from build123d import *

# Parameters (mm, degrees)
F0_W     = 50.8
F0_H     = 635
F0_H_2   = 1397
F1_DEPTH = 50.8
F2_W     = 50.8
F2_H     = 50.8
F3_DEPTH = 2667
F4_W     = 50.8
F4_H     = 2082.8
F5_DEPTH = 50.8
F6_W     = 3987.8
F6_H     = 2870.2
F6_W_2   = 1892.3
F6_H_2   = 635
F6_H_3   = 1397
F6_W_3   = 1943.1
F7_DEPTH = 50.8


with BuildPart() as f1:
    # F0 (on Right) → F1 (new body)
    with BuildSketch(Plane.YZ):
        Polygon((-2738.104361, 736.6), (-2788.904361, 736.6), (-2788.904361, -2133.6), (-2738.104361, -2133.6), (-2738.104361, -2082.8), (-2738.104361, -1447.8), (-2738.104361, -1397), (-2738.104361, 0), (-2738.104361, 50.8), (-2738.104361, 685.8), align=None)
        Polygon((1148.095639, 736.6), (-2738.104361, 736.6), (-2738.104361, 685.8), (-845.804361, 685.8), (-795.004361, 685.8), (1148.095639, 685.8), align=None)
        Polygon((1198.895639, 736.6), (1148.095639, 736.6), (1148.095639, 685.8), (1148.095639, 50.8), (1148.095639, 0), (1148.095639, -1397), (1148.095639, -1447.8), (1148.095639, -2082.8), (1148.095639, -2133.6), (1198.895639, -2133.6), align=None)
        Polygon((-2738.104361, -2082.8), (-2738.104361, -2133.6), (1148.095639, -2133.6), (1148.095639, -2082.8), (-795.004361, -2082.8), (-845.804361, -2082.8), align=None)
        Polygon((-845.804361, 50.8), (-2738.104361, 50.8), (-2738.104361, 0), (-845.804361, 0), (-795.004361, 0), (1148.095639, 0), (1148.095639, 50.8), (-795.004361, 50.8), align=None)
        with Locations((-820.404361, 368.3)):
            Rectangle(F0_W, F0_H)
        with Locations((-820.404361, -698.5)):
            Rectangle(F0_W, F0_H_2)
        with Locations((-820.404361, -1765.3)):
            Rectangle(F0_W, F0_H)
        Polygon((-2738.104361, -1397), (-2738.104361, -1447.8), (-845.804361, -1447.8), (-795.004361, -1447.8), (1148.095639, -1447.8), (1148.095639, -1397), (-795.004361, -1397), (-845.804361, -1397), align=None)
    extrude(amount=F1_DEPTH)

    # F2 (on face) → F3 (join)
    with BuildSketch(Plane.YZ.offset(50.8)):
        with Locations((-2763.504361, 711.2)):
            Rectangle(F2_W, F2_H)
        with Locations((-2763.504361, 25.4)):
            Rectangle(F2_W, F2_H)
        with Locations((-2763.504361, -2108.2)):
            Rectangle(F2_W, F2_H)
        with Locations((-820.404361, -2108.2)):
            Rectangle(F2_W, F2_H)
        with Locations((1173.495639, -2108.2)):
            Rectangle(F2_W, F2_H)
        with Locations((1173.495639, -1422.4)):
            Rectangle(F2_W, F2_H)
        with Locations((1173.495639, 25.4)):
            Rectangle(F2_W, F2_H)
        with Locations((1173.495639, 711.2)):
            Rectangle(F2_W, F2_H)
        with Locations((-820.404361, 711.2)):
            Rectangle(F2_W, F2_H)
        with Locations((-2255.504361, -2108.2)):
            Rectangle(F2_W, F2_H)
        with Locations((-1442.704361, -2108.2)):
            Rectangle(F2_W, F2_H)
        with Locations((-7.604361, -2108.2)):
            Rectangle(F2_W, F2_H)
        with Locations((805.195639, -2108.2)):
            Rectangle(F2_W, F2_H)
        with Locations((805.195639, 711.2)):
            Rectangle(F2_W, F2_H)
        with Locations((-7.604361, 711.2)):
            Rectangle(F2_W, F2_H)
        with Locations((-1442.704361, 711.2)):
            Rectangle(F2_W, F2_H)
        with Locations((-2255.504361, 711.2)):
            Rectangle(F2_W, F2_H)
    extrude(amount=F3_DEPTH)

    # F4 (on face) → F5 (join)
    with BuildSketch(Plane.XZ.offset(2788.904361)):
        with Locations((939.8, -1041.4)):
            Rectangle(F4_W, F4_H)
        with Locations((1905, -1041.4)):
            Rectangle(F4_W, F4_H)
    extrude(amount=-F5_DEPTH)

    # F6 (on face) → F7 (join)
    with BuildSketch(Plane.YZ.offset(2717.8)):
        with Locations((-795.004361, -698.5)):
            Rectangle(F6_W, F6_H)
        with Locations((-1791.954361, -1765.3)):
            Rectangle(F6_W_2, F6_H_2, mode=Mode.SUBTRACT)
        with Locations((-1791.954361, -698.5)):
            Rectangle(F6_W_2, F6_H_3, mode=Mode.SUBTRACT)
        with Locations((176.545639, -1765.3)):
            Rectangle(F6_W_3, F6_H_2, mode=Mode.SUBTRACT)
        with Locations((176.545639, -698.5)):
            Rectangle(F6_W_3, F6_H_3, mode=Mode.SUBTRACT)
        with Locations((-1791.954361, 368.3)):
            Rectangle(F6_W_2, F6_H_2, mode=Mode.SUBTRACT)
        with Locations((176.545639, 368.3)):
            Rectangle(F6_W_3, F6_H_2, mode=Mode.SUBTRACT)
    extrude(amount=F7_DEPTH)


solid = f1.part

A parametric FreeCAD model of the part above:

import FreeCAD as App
import Part
import Sketcher

V = App.Vector
Q = App.Units.Quantity

doc = App.newDocument("Part")
body = doc.addObject("PartDesign::Body", "Body")

sketch1 = body.newObject("Sketcher::SketchObject", "Sketch")
sketch1.AttachmentSupport = (doc.getObject("YZ_Plane"), [""])
sketch1.MapMode = "FlatFace"
sketch1.addGeometry(Part.LineSegment(V(-2788.904361, 736.6, 0), V(-2788.904361, -2133.6, 0)), False)
sketch1.addGeometry(Part.LineSegment(V(-2788.904361, -2133.6, 0), V(1198.895639, -2133.6, 0)), False)
sketch1.addGeometry(Part.LineSegment(V(1198.895639, -2133.6, 0), V(1198.895639, 736.6, 0)), False)
sketch1.addGeometry(Part.LineSegment(V(1198.895639, 736.6, 0), V(-2788.904361, 736.6, 0)), False)
sketch1.addGeometry(Part.LineSegment(V(-2738.104361, -2082.8, 0), V(-2738.104361, -1447.8, 0)), False)
sketch1.addGeometry(Part.LineSegment(V(-2738.104361, -1447.8, 0), V(-845.804361, -1447.8, 0)), False)
sketch1.addGeometry(Part.LineSegment(V(-845.804361, -1447.8, 0), V(-845.804361, -2082.8, 0)), False)
sketch1.addGeometry(Part.LineSegment(V(-845.804361, -2082.8, 0), V(-2738.104361, -2082.8, 0)), False)
sketch1.addGeometry(Part.LineSegment(V(-2738.104361, -1397, 0), V(-2738.104361, 0, 0)), False)
sketch1.addGeometry(Part.LineSegment(V(-2738.104361, 0, 0), V(-845.804361, 0, 0)), False)
sketch1.addGeometry(Part.LineSegment(V(-845.804361, 0, 0), V(-845.804361, -1397, 0)), False)
sketch1.addGeometry(Part.LineSegment(V(-845.804361, -1397, 0), V(-2738.104361, -1397, 0)), False)
sketch1.addGeometry(Part.LineSegment(V(-795.004361, -1397, 0), V(-795.004361, 0, 0)), False)
sketch1.addGeometry(Part.LineSegment(V(-795.004361, 0, 0), V(1148.095639, 0, 0)), False)
sketch1.addGeometry(Part.LineSegment(V(1148.095639, 0, 0), V(1148.095639, -1397, 0)), False)
sketch1.addGeometry(Part.LineSegment(V(1148.095639, -1397, 0), V(-795.004361, -1397, 0)), False)
sketch1.addGeometry(Part.LineSegment(V(1148.095639, -1447.8, 0), V(1148.095639, -2082.8, 0)), False)
sketch1.addGeometry(Part.LineSegment(V(1148.095639, -2082.8, 0), V(-795.004361, -2082.8, 0)), False)
sketch1.addGeometry(Part.LineSegment(V(-795.004361, -2082.8, 0), V(-795.004361, -1447.8, 0)), False)
sketch1.addGeometry(Part.LineSegment(V(-795.004361, -1447.8, 0), V(1148.095639, -1447.8, 0)), False)
sketch1.addGeometry(Part.LineSegment(V(-2738.104361, 50.8, 0), V(-2738.104361, 685.8, 0)), False)
sketch1.addGeometry(Part.LineSegment(V(-2738.104361, 685.8, 0), V(-845.804361, 685.8, 0)), False)
sketch1.addGeometry(Part.LineSegment(V(-845.804361, 685.8, 0), V(-845.804361, 50.8, 0)), False)
sketch1.addGeometry(Part.LineSegment(V(-845.804361, 50.8, 0), V(-2738.104361, 50.8, 0)), False)
sketch1.addGeometry(Part.LineSegment(V(-795.004361, 685.8, 0), V(1148.095639, 685.8, 0)), False)
sketch1.addGeometry(Part.LineSegment(V(1148.095639, 685.8, 0), V(1148.095639, 50.8, 0)), False)
sketch1.addGeometry(Part.LineSegment(V(1148.095639, 50.8, 0), V(-795.004361, 50.8, 0)), False)
sketch1.addGeometry(Part.LineSegment(V(-795.004361, 50.8, 0), V(-795.004361, 685.8, 0)), False)
sketch1.addConstraint(Sketcher.Constraint("Coincident", 0, 2, 1, 1))
sketch1.addConstraint(Sketcher.Constraint("Coincident", 1, 2, 2, 1))
sketch1.addConstraint(Sketcher.Constraint("Coincident", 2, 2, 3, 1))
sketch1.addConstraint(Sketcher.Constraint("Coincident", 3, 2, 0, 1))
sketch1.addConstraint(Sketcher.Constraint("Coincident", 4, 2, 5, 1))
sketch1.addConstraint(Sketcher.Constraint("Coincident", 5, 2, 6, 1))
sketch1.addConstraint(Sketcher.Constraint("Coincident", 6, 2, 7, 1))
sketch1.addConstraint(Sketcher.Constraint("Coincident", 7, 2, 4, 1))
sketch1.addConstraint(Sketcher.Constraint("Coincident", 8, 2, 9, 1))
sketch1.addConstraint(Sketcher.Constraint("Coincident", 9, 2, 10, 1))
sketch1.addConstraint(Sketcher.Constraint("Coincident", 10, 2, 11, 1))
sketch1.addConstraint(Sketcher.Constraint("Coincident", 11, 2, 8, 1))
sketch1.addConstraint(Sketcher.Constraint("Coincident", 12, 2, 13, 1))
sketch1.addConstraint(Sketcher.Constraint("Coincident", 13, 2, 14, 1))
sketch1.addConstraint(Sketcher.Constraint("Coincident", 14, 2, 15, 1))
sketch1.addConstraint(Sketcher.Constraint("Coincident", 15, 2, 12, 1))
sketch1.addConstraint(Sketcher.Constraint("Coincident", 16, 2, 17, 1))
sketch1.addConstraint(Sketcher.Constraint("Coincident", 17, 2, 18, 1))
sketch1.addConstraint(Sketcher.Constraint("Coincident", 18, 2, 19, 1))
sketch1.addConstraint(Sketcher.Constraint("Coincident", 19, 2, 16, 1))
sketch1.addConstraint(Sketcher.Constraint("Coincident", 20, 2, 21, 1))
sketch1.addConstraint(Sketcher.Constraint("Coincident", 21, 2, 22, 1))
sketch1.addConstraint(Sketcher.Constraint("Coincident", 22, 2, 23, 1))
sketch1.addConstraint(Sketcher.Constraint("Coincident", 23, 2, 20, 1))
sketch1.addConstraint(Sketcher.Constraint("Coincident", 24, 2, 25, 1))
sketch1.addConstraint(Sketcher.Constraint("Coincident", 25, 2, 26, 1))
sketch1.addConstraint(Sketcher.Constraint("Coincident", 26, 2, 27, 1))
sketch1.addConstraint(Sketcher.Constraint("Coincident", 27, 2, 24, 1))
sketch1.addConstraint(Sketcher.Constraint("Vertical", 0))
sketch1.addConstraint(Sketcher.Constraint("Horizontal", 1))
sketch1.addConstraint(Sketcher.Constraint("Vertical", 2))
sketch1.addConstraint(Sketcher.Constraint("Horizontal", 3))
sketch1.addConstraint(Sketcher.Constraint("Vertical", 4))
sketch1.addConstraint(Sketcher.Constraint("Horizontal", 5))
sketch1.addConstraint(Sketcher.Constraint("Vertical", 6))
sketch1.addConstraint(Sketcher.Constraint("Horizontal", 7))
sketch1.addConstraint(Sketcher.Constraint("Vertical", 8))
sketch1.addConstraint(Sketcher.Constraint("Horizontal", 9))
sketch1.addConstraint(Sketcher.Constraint("Vertical", 10))
sketch1.addConstraint(Sketcher.Constraint("Horizontal", 11))
sketch1.addConstraint(Sketcher.Constraint("Vertical", 12))
sketch1.addConstraint(Sketcher.Constraint("Horizontal", 13))
sketch1.addConstraint(Sketcher.Constraint("Vertical", 14))
sketch1.addConstraint(Sketcher.Constraint("Horizontal", 15))
sketch1.addConstraint(Sketcher.Constraint("Vertical", 16))
sketch1.addConstraint(Sketcher.Constraint("Horizontal", 17))
sketch1.addConstraint(Sketcher.Constraint("Vertical", 18))
sketch1.addConstraint(Sketcher.Constraint("Horizontal", 19))
sketch1.addConstraint(Sketcher.Constraint("Vertical", 20))
sketch1.addConstraint(Sketcher.Constraint("Horizontal", 21))
sketch1.addConstraint(Sketcher.Constraint("Vertical", 22))
sketch1.addConstraint(Sketcher.Constraint("Horizontal", 23))
sketch1.addConstraint(Sketcher.Constraint("Horizontal", 24))
sketch1.addConstraint(Sketcher.Constraint("Vertical", 25))
sketch1.addConstraint(Sketcher.Constraint("Horizontal", 26))
sketch1.addConstraint(Sketcher.Constraint("Vertical", 27))
sketch1.addConstraint(Sketcher.Constraint("PointOnObject", 8, 2, -1))
sketch1.addConstraint(Sketcher.Constraint("PointOnObject", 12, 2, -1))
sketch1.addConstraint(Sketcher.Constraint("Horizontal", 11, 2, 14, 2))
sketch1.addConstraint(Sketcher.Constraint("Horizontal", 7, 2, 16, 2))
sketch1.addConstraint(Sketcher.Constraint("Horizontal", 5, 2, 18, 2))
sketch1.addConstraint(Sketcher.Constraint("Horizontal", 21, 2, 24, 2))
sketch1.addConstraint(Sketcher.Constraint("Horizontal", 23, 2, 25, 2))
sketch1.addConstraint(Sketcher.Constraint("Vertical", 7, 2, 8, 2))
sketch1.addConstraint(Sketcher.Constraint("Vertical", 6, 2, 9, 2))
sketch1.addConstraint(Sketcher.Constraint("Vertical", 14, 2, 16, 2))
sketch1.addConstraint(Sketcher.Constraint("Vertical", 15, 2, 17, 2))
sketch1.addConstraint(Sketcher.Constraint("Vertical", 11, 2, 20, 2))
sketch1.addConstraint(Sketcher.Constraint("Vertical", 10, 2, 21, 2))
sketch1.addConstraint(Sketcher.Constraint("Vertical", 19, 2, 24, 2))
sketch1.addConstraint(Sketcher.Constraint("Vertical", 18, 2, 26, 2))
sketch1.addConstraint(Sketcher.Constraint("Equal", 18, 20))
sketch1.addConstraint(Sketcher.Constraint("DistanceX", 1, 1, 1, 2, Q("157 in")))
sketch1.addConstraint(Sketcher.Constraint("DistanceY", 0, 2, 0, 1, Q("113 in")))
sketch1.addConstraint(Sketcher.Constraint("DistanceY", 4, 1, 4, 2, Q("25 in")))
sketch1.addConstraint(Sketcher.Constraint("DistanceY", 8, 1, 8, 2, Q("55 in")))
sketch1.addConstraint(Sketcher.Constraint("DistanceX", 5, 1, 5, 2, Q("74.5 in")))
sketch1.addConstraint(Sketcher.Constraint("DistanceX", 13, 1, 13, 2, Q("76.5 in")))
sketch1.addConstraint(Sketcher.Constraint("DistanceY", 0, 2, -1, 1, Q("84 in")))
sketch1.addConstraint(Sketcher.Constraint("DistanceY", 4, 2, -1, 1, Q("57 in")))
sketch1.addConstraint(Sketcher.Constraint("DistanceY", -1, 1, 20, 2, Q("27 in")))
sketch1.addConstraint(Sketcher.Constraint("DistanceX", 0, 2, 4, 2, Q("2 in")))
sketch1.addConstraint(Sketcher.Constraint("DistanceX", 9, 2, 12, 2, Q("2 in")))
sketch1.addConstraint(Sketcher.Constraint("DistanceX", 0, 2, -1, 1, 2788.904361))
pad1 = body.newObject("PartDesign::Pad", "Pad")
pad1.Profile = sketch1
pad1.Length = Q("2 in")

sketch2 = body.newObject("Sketcher::SketchObject", "Sketch001")
sketch2.AttachmentSupport = (doc.getObject("YZ_Plane"), [""])
sketch2.MapMode = "FlatFace"
sketch2.AttachmentOffset = App.Placement(V(0, 0, 2 * 25.4), App.Rotation())
sketch2.addGeometry(Part.LineSegment(V(-2788.904361, 736.6, 0), V(-2788.904361, 685.8, 0)), False)
sketch2.addGeometry(Part.LineSegment(V(-2788.904361, 685.8, 0), V(-2738.104361, 685.8, 0)), False)
sketch2.addGeometry(Part.LineSegment(V(-2738.104361, 685.8, 0), V(-2738.104361, 736.6, 0)), False)
sketch2.addGeometry(Part.LineSegment(V(-2738.104361, 736.6, 0), V(-2788.904361, 736.6, 0)), False)
sketch2.addGeometry(Part.LineSegment(V(-2788.904361, 50.8, 0), V(-2788.904361, 0, 0)), False)
sketch2.addGeometry(Part.LineSegment(V(-2788.904361, 0, 0), V(-2738.104361, 0, 0)), False)
sketch2.addGeometry(Part.LineSegment(V(-2738.104361, 0, 0), V(-2738.104361, 50.8, 0)), False)
sketch2.addGeometry(Part.LineSegment(V(-2738.104361, 50.8, 0), V(-2788.904361, 50.8, 0)), False)
sketch2.addGeometry(Part.LineSegment(V(-2788.904361, -2082.8, 0), V(-2788.904361, -2133.6, 0)), False)
sketch2.addGeometry(Part.LineSegment(V(-2788.904361, -2133.6, 0), V(-2738.104361, -2133.6, 0)), False)
sketch2.addGeometry(Part.LineSegment(V(-2738.104361, -2133.6, 0), V(-2738.104361, -2082.8, 0)), False)
sketch2.addGeometry(Part.LineSegment(V(-2738.104361, -2082.8, 0), V(-2788.904361, -2082.8, 0)), False)
sketch2.addGeometry(Part.LineSegment(V(-845.804361, -2082.8, 0), V(-845.804361, -2133.6, 0)), False)
sketch2.addGeometry(Part.LineSegment(V(-845.804361, -2133.6, 0), V(-795.004361, -2133.6, 0)), False)
sketch2.addGeometry(Part.LineSegment(V(-795.004361, -2133.6, 0), V(-795.004361, -2082.8, 0)), False)
sketch2.addGeometry(Part.LineSegment(V(-795.004361, -2082.8, 0), V(-845.804361, -2082.8, 0)), False)
sketch2.addGeometry(Part.LineSegment(V(1148.095639, -2082.8, 0), V(1148.095639, -2133.6, 0)), False)
sketch2.addGeometry(Part.LineSegment(V(1148.095639, -2133.6, 0), V(1198.895639, -2133.6, 0)), False)
sketch2.addGeometry(Part.LineSegment(V(1198.895639, -2133.6, 0), V(1198.895639, -2082.8, 0)), False)
sketch2.addGeometry(Part.LineSegment(V(1198.895639, -2082.8, 0), V(1148.095639, -2082.8, 0)), False)
sketch2.addGeometry(Part.LineSegment(V(1148.095639, -1397, 0), V(1148.095639, -1447.8, 0)), False)
sketch2.addGeometry(Part.LineSegment(V(1148.095639, -1447.8, 0), V(1198.895639, -1447.8, 0)), False)
sketch2.addGeometry(Part.LineSegment(V(1198.895639, -1447.8, 0), V(1198.895639, -1397, 0)), False)
sketch2.addGeometry(Part.LineSegment(V(1198.895639, -1397, 0), V(1148.095639, -1397, 0)), False)
sketch2.addGeometry(Part.LineSegment(V(1148.095639, 50.8, 0), V(1148.095639, 0, 0)), False)
sketch2.addGeometry(Part.LineSegment(V(1148.095639, 0, 0), V(1198.895639, 0, 0)), False)
sketch2.addGeometry(Part.LineSegment(V(1198.895639, 0, 0), V(1198.895639, 50.8, 0)), False)
sketch2.addGeometry(Part.LineSegment(V(1198.895639, 50.8, 0), V(1148.095639, 50.8, 0)), False)
sketch2.addGeometry(Part.LineSegment(V(1148.095639, 736.6, 0), V(1148.095639, 685.8, 0)), False)
sketch2.addGeometry(Part.LineSegment(V(1148.095639, 685.8, 0), V(1198.895639, 685.8, 0)), False)
sketch2.addGeometry(Part.LineSegment(V(1198.895639, 685.8, 0), V(1198.895639, 736.6, 0)), False)
sketch2.addGeometry(Part.LineSegment(V(1198.895639, 736.6, 0), V(1148.095639, 736.6, 0)), False)
sketch2.addGeometry(Part.LineSegment(V(-845.804361, 736.6, 0), V(-845.804361, 685.8, 0)), False)
sketch2.addGeometry(Part.LineSegment(V(-845.804361, 685.8, 0), V(-795.004361, 685.8, 0)), False)
sketch2.addGeometry(Part.LineSegment(V(-795.004361, 685.8, 0), V(-795.004361, 736.6, 0)), False)
sketch2.addGeometry(Part.LineSegment(V(-795.004361, 736.6, 0), V(-845.804361, 736.6, 0)), False)
sketch2.addGeometry(Part.LineSegment(V(-2280.904361, -2082.8, 0), V(-2280.904361, -2133.6, 0)), False)
sketch2.addGeometry(Part.LineSegment(V(-2280.904361, -2133.6, 0), V(-2230.104361, -2133.6, 0)), False)
sketch2.addGeometry(Part.LineSegment(V(-2230.104361, -2133.6, 0), V(-2230.104361, -2082.8, 0)), False)
sketch2.addGeometry(Part.LineSegment(V(-2230.104361, -2082.8, 0), V(-2280.904361, -2082.8, 0)), False)
sketch2.addGeometry(Part.LineSegment(V(-1468.104361, -2082.8, 0), V(-1468.104361, -2133.6, 0)), False)
sketch2.addGeometry(Part.LineSegment(V(-1468.104361, -2133.6, 0), V(-1417.304361, -2133.6, 0)), False)
sketch2.addGeometry(Part.LineSegment(V(-1417.304361, -2133.6, 0), V(-1417.304361, -2082.8, 0)), False)
sketch2.addGeometry(Part.LineSegment(V(-1417.304361, -2082.8, 0), V(-1468.104361, -2082.8, 0)), False)
sketch2.addGeometry(Part.LineSegment(V(-33.004361, -2082.8, 0), V(-33.004361, -2133.6, 0)), False)
sketch2.addGeometry(Part.LineSegment(V(-33.004361, -2133.6, 0), V(17.795639, -2133.6, 0)), False)
sketch2.addGeometry(Part.LineSegment(V(17.795639, -2133.6, 0), V(17.795639, -2082.8, 0)), False)
sketch2.addGeometry(Part.LineSegment(V(17.795639, -2082.8, 0), V(-33.004361, -2082.8, 0)), False)
sketch2.addGeometry(Part.LineSegment(V(779.795639, -2082.8, 0), V(779.795639, -2133.6, 0)), False)
sketch2.addGeometry(Part.LineSegment(V(779.795639, -2133.6, 0), V(830.595639, -2133.6, 0)), False)
sketch2.addGeometry(Part.LineSegment(V(830.595639, -2133.6, 0), V(830.595639, -2082.8, 0)), False)
sketch2.addGeometry(Part.LineSegment(V(830.595639, -2082.8, 0), V(779.795639, -2082.8, 0)), False)
sketch2.addGeometry(Part.LineSegment(V(779.795639, 736.6, 0), V(779.795639, 685.8, 0)), False)
sketch2.addGeometry(Part.LineSegment(V(779.795639, 685.8, 0), V(830.595639, 685.8, 0)), False)
sketch2.addGeometry(Part.LineSegment(V(830.595639, 685.8, 0), V(830.595639, 736.6, 0)), False)
sketch2.addGeometry(Part.LineSegment(V(830.595639, 736.6, 0), V(779.795639, 736.6, 0)), False)
sketch2.addGeometry(Part.LineSegment(V(-33.004361, 736.6, 0), V(-33.004361, 685.8, 0)), False)
sketch2.addGeometry(Part.LineSegment(V(-33.004361, 685.8, 0), V(17.795639, 685.8, 0)), False)
sketch2.addGeometry(Part.LineSegment(V(17.795639, 685.8, 0), V(17.795639, 736.6, 0)), False)
sketch2.addGeometry(Part.LineSegment(V(17.795639, 736.6, 0), V(-33.004361, 736.6, 0)), False)
sketch2.addGeometry(Part.LineSegment(V(-1468.104361, 736.6, 0), V(-1468.104361, 685.8, 0)), False)
sketch2.addGeometry(Part.LineSegment(V(-1468.104361, 685.8, 0), V(-1417.304361, 685.8, 0)), False)
sketch2.addGeometry(Part.LineSegment(V(-1417.304361, 685.8, 0), V(-1417.304361, 736.6, 0)), False)
sketch2.addGeometry(Part.LineSegment(V(-1417.304361, 736.6, 0), V(-1468.104361, 736.6, 0)), False)
sketch2.addGeometry(Part.LineSegment(V(-2280.904361, 736.6, 0), V(-2280.904361, 685.8, 0)), False)
sketch2.addGeometry(Part.LineSegment(V(-2280.904361, 685.8, 0), V(-2230.104361, 685.8, 0)), False)
sketch2.addGeometry(Part.LineSegment(V(-2230.104361, 685.8, 0), V(-2230.104361, 736.6, 0)), False)
sketch2.addGeometry(Part.LineSegment(V(-2230.104361, 736.6, 0), V(-2280.904361, 736.6, 0)), False)
sketch2.addConstraint(Sketcher.Constraint("Coincident", 0, 2, 1, 1))
sketch2.addConstraint(Sketcher.Constraint("Coincident", 1, 2, 2, 1))
sketch2.addConstraint(Sketcher.Constraint("Coincident", 2, 2, 3, 1))
sketch2.addConstraint(Sketcher.Constraint("Coincident", 3, 2, 0, 1))
sketch2.addConstraint(Sketcher.Constraint("Coincident", 4, 2, 5, 1))
sketch2.addConstraint(Sketcher.Constraint("Coincident", 5, 2, 6, 1))
sketch2.addConstraint(Sketcher.Constraint("Coincident", 6, 2, 7, 1))
sketch2.addConstraint(Sketcher.Constraint("Coincident", 7, 2, 4, 1))
sketch2.addConstraint(Sketcher.Constraint("Coincident", 8, 2, 9, 1))
sketch2.addConstraint(Sketcher.Constraint("Coincident", 9, 2, 10, 1))
sketch2.addConstraint(Sketcher.Constraint("Coincident", 10, 2, 11, 1))
sketch2.addConstraint(Sketcher.Constraint("Coincident", 11, 2, 8, 1))
sketch2.addConstraint(Sketcher.Constraint("Coincident", 12, 2, 13, 1))
sketch2.addConstraint(Sketcher.Constraint("Coincident", 13, 2, 14, 1))
sketch2.addConstraint(Sketcher.Constraint("Coincident", 14, 2, 15, 1))
sketch2.addConstraint(Sketcher.Constraint("Coincident", 15, 2, 12, 1))
sketch2.addConstraint(Sketcher.Constraint("Coincident", 16, 2, 17, 1))
sketch2.addConstraint(Sketcher.Constraint("Coincident", 17, 2, 18, 1))
sketch2.addConstraint(Sketcher.Constraint("Coincident", 18, 2, 19, 1))
sketch2.addConstraint(Sketcher.Constraint("Coincident", 19, 2, 16, 1))
sketch2.addConstraint(Sketcher.Constraint("Coincident", 20, 2, 21, 1))
sketch2.addConstraint(Sketcher.Constraint("Coincident", 21, 2, 22, 1))
sketch2.addConstraint(Sketcher.Constraint("Coincident", 22, 2, 23, 1))
sketch2.addConstraint(Sketcher.Constraint("Coincident", 23, 2, 20, 1))
sketch2.addConstraint(Sketcher.Constraint("Coincident", 24, 2, 25, 1))
sketch2.addConstraint(Sketcher.Constraint("Coincident", 25, 2, 26, 1))
sketch2.addConstraint(Sketcher.Constraint("Coincident", 26, 2, 27, 1))
sketch2.addConstraint(Sketcher.Constraint("Coincident", 27, 2, 24, 1))
sketch2.addConstraint(Sketcher.Constraint("Coincident", 28, 2, 29, 1))
sketch2.addConstraint(Sketcher.Constraint("Coincident", 29, 2, 30, 1))
sketch2.addConstraint(Sketcher.Constraint("Coincident", 30, 2, 31, 1))
sketch2.addConstraint(Sketcher.Constraint("Coincident", 31, 2, 28, 1))
sketch2.addConstraint(Sketcher.Constraint("Coincident", 32, 2, 33, 1))
sketch2.addConstraint(Sketcher.Constraint("Coincident", 33, 2, 34, 1))
sketch2.addConstraint(Sketcher.Constraint("Coincident", 34, 2, 35, 1))
sketch2.addConstraint(Sketcher.Constraint("Coincident", 35, 2, 32, 1))
sketch2.addConstraint(Sketcher.Constraint("Coincident", 36, 2, 37, 1))
sketch2.addConstraint(Sketcher.Constraint("Coincident", 37, 2, 38, 1))
sketch2.addConstraint(Sketcher.Constraint("Coincident", 38, 2, 39, 1))
sketch2.addConstraint(Sketcher.Constraint("Coincident", 39, 2, 36, 1))
sketch2.addConstraint(Sketcher.Constraint("Coincident", 40, 2, 41, 1))
sketch2.addConstraint(Sketcher.Constraint("Coincident", 41, 2, 42, 1))
sketch2.addConstraint(Sketcher.Constraint("Coincident", 42, 2, 43, 1))
sketch2.addConstraint(Sketcher.Constraint("Coincident", 43, 2, 40, 1))
sketch2.addConstraint(Sketcher.Constraint("Coincident", 44, 2, 45, 1))
sketch2.addConstraint(Sketcher.Constraint("Coincident", 45, 2, 46, 1))
sketch2.addConstraint(Sketcher.Constraint("Coincident", 46, 2, 47, 1))
sketch2.addConstraint(Sketcher.Constraint("Coincident", 47, 2, 44, 1))
sketch2.addConstraint(Sketcher.Constraint("Coincident", 48, 2, 49, 1))
sketch2.addConstraint(Sketcher.Constraint("Coincident", 49, 2, 50, 1))
sketch2.addConstraint(Sketcher.Constraint("Coincident", 50, 2, 51, 1))
sketch2.addConstraint(Sketcher.Constraint("Coincident", 51, 2, 48, 1))
sketch2.addConstraint(Sketcher.Constraint("Coincident", 52, 2, 53, 1))
sketch2.addConstraint(Sketcher.Constraint("Coincident", 53, 2, 54, 1))
sketch2.addConstraint(Sketcher.Constraint("Coincident", 54, 2, 55, 1))
sketch2.addConstraint(Sketcher.Constraint("Coincident", 55, 2, 52, 1))
sketch2.addConstraint(Sketcher.Constraint("Coincident", 56, 2, 57, 1))
sketch2.addConstraint(Sketcher.Constraint("Coincident", 57, 2, 58, 1))
sketch2.addConstraint(Sketcher.Constraint("Coincident", 58, 2, 59, 1))
sketch2.addConstraint(Sketcher.Constraint("Coincident", 59, 2, 56, 1))
sketch2.addConstraint(Sketcher.Constraint("Coincident", 60, 2, 61, 1))
sketch2.addConstraint(Sketcher.Constraint("Coincident", 61, 2, 62, 1))
sketch2.addConstraint(Sketcher.Constraint("Coincident", 62, 2, 63, 1))
sketch2.addConstraint(Sketcher.Constraint("Coincident", 63, 2, 60, 1))
sketch2.addConstraint(Sketcher.Constraint("Coincident", 64, 2, 65, 1))
sketch2.addConstraint(Sketcher.Constraint("Coincident", 65, 2, 66, 1))
sketch2.addConstraint(Sketcher.Constraint("Coincident", 66, 2, 67, 1))
sketch2.addConstraint(Sketcher.Constraint("Coincident", 67, 2, 64, 1))
sketch2.addConstraint(Sketcher.Constraint("Vertical", 0))
sketch2.addConstraint(Sketcher.Constraint("Horizontal", 1))
sketch2.addConstraint(Sketcher.Constraint("Vertical", 2))
sketch2.addConstraint(Sketcher.Constraint("Horizontal", 3))
sketch2.addConstraint(Sketcher.Constraint("Vertical", 4))
sketch2.addConstraint(Sketcher.Constraint("Horizontal", 5))
sketch2.addConstraint(Sketcher.Constraint("Vertical", 6))
sketch2.addConstraint(Sketcher.Constraint("Horizontal", 7))
sketch2.addConstraint(Sketcher.Constraint("Vertical", 8))
sketch2.addConstraint(Sketcher.Constraint("Horizontal", 9))
sketch2.addConstraint(Sketcher.Constraint("Vertical", 10))
sketch2.addConstraint(Sketcher.Constraint("Horizontal", 11))
sketch2.addConstraint(Sketcher.Constraint("Vertical", 12))
sketch2.addConstraint(Sketcher.Constraint("Horizontal", 13))
sketch2.addConstraint(Sketcher.Constraint("Vertical", 14))
sketch2.addConstraint(Sketcher.Constraint("Horizontal", 15))
sketch2.addConstraint(Sketcher.Constraint("Vertical", 16))
sketch2.addConstraint(Sketcher.Constraint("Horizontal", 17))
sketch2.addConstraint(Sketcher.Constraint("Vertical", 18))
sketch2.addConstraint(Sketcher.Constraint("Horizontal", 19))
sketch2.addConstraint(Sketcher.Constraint("Vertical", 20))
sketch2.addConstraint(Sketcher.Constraint("Horizontal", 21))
sketch2.addConstraint(Sketcher.Constraint("Vertical", 22))
sketch2.addConstraint(Sketcher.Constraint("Horizontal", 23))
sketch2.addConstraint(Sketcher.Constraint("Vertical", 24))
sketch2.addConstraint(Sketcher.Constraint("Horizontal", 25))
sketch2.addConstraint(Sketcher.Constraint("Vertical", 26))
sketch2.addConstraint(Sketcher.Constraint("Horizontal", 27))
sketch2.addConstraint(Sketcher.Constraint("Vertical", 28))
sketch2.addConstraint(Sketcher.Constraint("Horizontal", 29))
sketch2.addConstraint(Sketcher.Constraint("Vertical", 30))
sketch2.addConstraint(Sketcher.Constraint("Horizontal", 31))
sketch2.addConstraint(Sketcher.Constraint("Vertical", 32))
sketch2.addConstraint(Sketcher.Constraint("Horizontal", 33))
sketch2.addConstraint(Sketcher.Constraint("Vertical", 34))
sketch2.addConstraint(Sketcher.Constraint("Horizontal", 35))
sketch2.addConstraint(Sketcher.Constraint("Vertical", 36))
sketch2.addConstraint(Sketcher.Constraint("Horizontal", 37))
sketch2.addConstraint(Sketcher.Constraint("Vertical", 38))
sketch2.addConstraint(Sketcher.Constraint("Horizontal", 39))
sketch2.addConstraint(Sketcher.Constraint("Vertical", 40))
sketch2.addConstraint(Sketcher.Constraint("Horizontal", 41))
sketch2.addConstraint(Sketcher.Constraint("Vertical", 42))
sketch2.addConstraint(Sketcher.Constraint("Horizontal", 43))
sketch2.addConstraint(Sketcher.Constraint("Vertical", 44))
sketch2.addConstraint(Sketcher.Constraint("Horizontal", 45))
sketch2.addConstraint(Sketcher.Constraint("Vertical", 46))
sketch2.addConstraint(Sketcher.Constraint("Horizontal", 47))
sketch2.addConstraint(Sketcher.Constraint("Vertical", 48))
sketch2.addConstraint(Sketcher.Constraint("Horizontal", 49))
sketch2.addConstraint(Sketcher.Constraint("Vertical", 50))
sketch2.addConstraint(Sketcher.Constraint("Horizontal", 51))
sketch2.addConstraint(Sketcher.Constraint("Vertical", 52))
sketch2.addConstraint(Sketcher.Constraint("Horizontal", 53))
sketch2.addConstraint(Sketcher.Constraint("Vertical", 54))
sketch2.addConstraint(Sketcher.Constraint("Horizontal", 55))
sketch2.addConstraint(Sketcher.Constraint("Vertical", 56))
sketch2.addConstraint(Sketcher.Constraint("Horizontal", 57))
sketch2.addConstraint(Sketcher.Constraint("Vertical", 58))
sketch2.addConstraint(Sketcher.Constraint("Horizontal", 59))
sketch2.addConstraint(Sketcher.Constraint("Vertical", 60))
sketch2.addConstraint(Sketcher.Constraint("Horizontal", 61))
sketch2.addConstraint(Sketcher.Constraint("Vertical", 62))
sketch2.addConstraint(Sketcher.Constraint("Horizontal", 63))
sketch2.addConstraint(Sketcher.Constraint("Vertical", 64))
sketch2.addConstraint(Sketcher.Constraint("Horizontal", 65))
sketch2.addConstraint(Sketcher.Constraint("Vertical", 66))
sketch2.addConstraint(Sketcher.Constraint("Horizontal", 67))
sketch2.addConstraint(Sketcher.Constraint("PointOnObject", 4, 2, -1))
sketch2.addConstraint(Sketcher.Constraint("PointOnObject", 24, 2, -1))
sketch2.addConstraint(Sketcher.Constraint("Horizontal", 9, 2, 12, 2))
sketch2.addConstraint(Sketcher.Constraint("Horizontal", 11, 2, 14, 2))
sketch2.addConstraint(Sketcher.Constraint("Horizontal", 13, 2, 16, 2))
sketch2.addConstraint(Sketcher.Constraint("Horizontal", 15, 2, 18, 2))
sketch2.addConstraint(Sketcher.Constraint("Horizontal", 7, 2, 26, 2))
sketch2.addConstraint(Sketcher.Constraint("Horizontal", 1, 2, 28, 2))
sketch2.addConstraint(Sketcher.Constraint("Horizontal", 3, 2, 30, 2))
sketch2.addConstraint(Sketcher.Constraint("Horizontal", 29, 2, 32, 2))
sketch2.addConstraint(Sketcher.Constraint("Horizontal", 31, 2, 34, 2))
sketch2.addConstraint(Sketcher.Constraint("Horizontal", 17, 2, 36, 2))
sketch2.addConstraint(Sketcher.Constraint("Horizontal", 19, 2, 38, 2))
sketch2.addConstraint(Sketcher.Constraint("Horizontal", 37, 2, 40, 2))
sketch2.addConstraint(Sketcher.Constraint("Horizontal", 39, 2, 42, 2))
sketch2.addConstraint(Sketcher.Constraint("Horizontal", 41, 2, 44, 2))
sketch2.addConstraint(Sketcher.Constraint("Horizontal", 43, 2, 46, 2))
sketch2.addConstraint(Sketcher.Constraint("Horizontal", 45, 2, 48, 2))
sketch2.addConstraint(Sketcher.Constraint("Horizontal", 47, 2, 50, 2))
sketch2.addConstraint(Sketcher.Constraint("Horizontal", 33, 2, 52, 2))
sketch2.addConstraint(Sketcher.Constraint("Horizontal", 35, 2, 54, 2))
sketch2.addConstraint(Sketcher.Constraint("Horizontal", 53, 2, 56, 2))
sketch2.addConstraint(Sketcher.Constraint("Horizontal", 55, 2, 58, 2))
sketch2.addConstraint(Sketcher.Constraint("Horizontal", 57, 2, 60, 2))
sketch2.addConstraint(Sketcher.Constraint("Horizontal", 59, 2, 62, 2))
sketch2.addConstraint(Sketcher.Constraint("Horizontal", 61, 2, 64, 2))
sketch2.addConstraint(Sketcher.Constraint("Horizontal", 63, 2, 66, 2))
sketch2.addConstraint(Sketcher.Constraint("Vertical", 3, 2, 4, 2))
sketch2.addConstraint(Sketcher.Constraint("Vertical", 2, 2, 5, 2))
sketch2.addConstraint(Sketcher.Constraint("Vertical", 7, 2, 8, 2))
sketch2.addConstraint(Sketcher.Constraint("Vertical", 6, 2, 9, 2))
sketch2.addConstraint(Sketcher.Constraint("Vertical", 19, 2, 20, 2))
sketch2.addConstraint(Sketcher.Constraint("Vertical", 18, 2, 21, 2))
sketch2.addConstraint(Sketcher.Constraint("Vertical", 23, 2, 24, 2))
sketch2.addConstraint(Sketcher.Constraint("Vertical", 22, 2, 25, 2))
sketch2.addConstraint(Sketcher.Constraint("Vertical", 27, 2, 28, 2))
sketch2.addConstraint(Sketcher.Constraint("Vertical", 26, 2, 29, 2))
sketch2.addConstraint(Sketcher.Constraint("Vertical", 15, 2, 32, 2))
sketch2.addConstraint(Sketcher.Constraint("Vertical", 14, 2, 33, 2))
sketch2.addConstraint(Sketcher.Constraint("Vertical", 51, 2, 52, 2))
sketch2.addConstraint(Sketcher.Constraint("Vertical", 50, 2, 53, 2))
sketch2.addConstraint(Sketcher.Constraint("Vertical", 47, 2, 56, 2))
sketch2.addConstraint(Sketcher.Constraint("Vertical", 46, 2, 57, 2))
sketch2.addConstraint(Sketcher.Constraint("Vertical", 43, 2, 60, 2))
sketch2.addConstraint(Sketcher.Constraint("Vertical", 42, 2, 61, 2))
sketch2.addConstraint(Sketcher.Constraint("Vertical", 39, 2, 64, 2))
sketch2.addConstraint(Sketcher.Constraint("Vertical", 38, 2, 65, 2))
sketch2.addConstraint(Sketcher.Constraint("Equal", 11, 13))
sketch2.addConstraint(Sketcher.Constraint("Equal", 15, 17))
sketch2.addConstraint(Sketcher.Constraint("Equal", 35, 37))
sketch2.addConstraint(Sketcher.Constraint("Equal", 39, 41))
sketch2.addConstraint(Sketcher.Constraint("Equal", 43, 45))
sketch2.addConstraint(Sketcher.Constraint("Equal", 47, 49))
sketch2.addConstraint(Sketcher.Constraint("Equal", 67, 0))
sketch2.addConstraint(Sketcher.Constraint("Equal", 2, 4))
sketch2.addConstraint(Sketcher.Constraint("Equal", 6, 8))
sketch2.addConstraint(Sketcher.Constraint("Equal", 18, 20))
sketch2.addConstraint(Sketcher.Constraint("DistanceX", 1, 1, 1, 2, Q("2 in")))
sketch2.addConstraint(Sketcher.Constraint("DistanceY", -1, 1, 0, 2, Q("27 in")))
sketch2.addConstraint(Sketcher.Constraint("DistanceY", 8, 2, -1, 1, Q("84 in")))
sketch2.addConstraint(Sketcher.Constraint("DistanceY", 20, 2, -1, 1, Q("57 in")))
sketch2.addConstraint(Sketcher.Constraint("DistanceX", 0, 2, -1, 1, 2788.904361))
sketch2.addConstraint(Sketcher.Constraint("DistanceX", 12, 2, -1, 1, 845.804361))
sketch2.addConstraint(Sketcher.Constraint("DistanceX", -1, 1, 16, 2, 1148.095639))
sketch2.addConstraint(Sketcher.Constraint("DistanceX", 36, 2, -1, 1, 2280.904361))
sketch2.addConstraint(Sketcher.Constraint("DistanceX", 40, 2, -1, 1, 1468.104361))
sketch2.addConstraint(Sketcher.Constraint("DistanceX", 44, 2, -1, 1, 33.004361))
sketch2.addConstraint(Sketcher.Constraint("DistanceX", -1, 1, 48, 2, 779.795639))
pad2 = body.newObject("PartDesign::Pad", "Pad001")
pad2.Profile = sketch2
pad2.Length = Q("105 in")

sketch3 = body.newObject("Sketcher::SketchObject", "Sketch002")
sketch3.AttachmentSupport = (doc.getObject("XZ_Plane"), [""])
sketch3.MapMode = "FlatFace"
sketch3.AttachmentOffset = App.Placement(V(0, 0, 2788.904361), App.Rotation())
sketch3.addGeometry(Part.LineSegment(V(914.4, 0, 0), V(914.4, -2082.8, 0)), False)
sketch3.addGeometry(Part.LineSegment(V(914.4, -2082.8, 0), V(965.2, -2082.8, 0)), False)
sketch3.addGeometry(Part.LineSegment(V(965.2, -2082.8, 0), V(965.2, 0, 0)), False)
sketch3.addGeometry(Part.LineSegment(V(965.2, 0, 0), V(914.4, 0, 0)), False)
sketch3.addGeometry(Part.LineSegment(V(1879.6, 0, 0), V(1879.6, -2082.8, 0)), False)
sketch3.addGeometry(Part.LineSegment(V(1879.6, -2082.8, 0), V(1930.4, -2082.8, 0)), False)
sketch3.addGeometry(Part.LineSegment(V(1930.4, -2082.8, 0), V(1930.4, 0, 0)), False)
sketch3.addGeometry(Part.LineSegment(V(1930.4, 0, 0), V(1879.6, 0, 0)), False)
sketch3.addConstraint(Sketcher.Constraint("Coincident", 0, 2, 1, 1))
sketch3.addConstraint(Sketcher.Constraint("Coincident", 1, 2, 2, 1))
sketch3.addConstraint(Sketcher.Constraint("Coincident", 2, 2, 3, 1))
sketch3.addConstraint(Sketcher.Constraint("Coincident", 3, 2, 0, 1))
sketch3.addConstraint(Sketcher.Constraint("Coincident", 4, 2, 5, 1))
sketch3.addConstraint(Sketcher.Constraint("Coincident", 5, 2, 6, 1))
sketch3.addConstraint(Sketcher.Constraint("Coincident", 6, 2, 7, 1))
sketch3.addConstraint(Sketcher.Constraint("Coincident", 7, 2, 4, 1))
sketch3.addConstraint(Sketcher.Constraint("Vertical", 0))
sketch3.addConstraint(Sketcher.Constraint("Horizontal", 1))
sketch3.addConstraint(Sketcher.Constraint("Vertical", 2))
sketch3.addConstraint(Sketcher.Constraint("Horizontal", 3))
sketch3.addConstraint(Sketcher.Constraint("Vertical", 4))
sketch3.addConstraint(Sketcher.Constraint("Horizontal", 5))
sketch3.addConstraint(Sketcher.Constraint("Vertical", 6))
sketch3.addConstraint(Sketcher.Constraint("Horizontal", 7))
sketch3.addConstraint(Sketcher.Constraint("PointOnObject", 2, 2, -1))
sketch3.addConstraint(Sketcher.Constraint("PointOnObject", 6, 2, -1))
sketch3.addConstraint(Sketcher.Constraint("Horizontal", 1, 2, 4, 2))
sketch3.addConstraint(Sketcher.Constraint("Equal", 3, 5))
sketch3.addConstraint(Sketcher.Constraint("DistanceX", 1, 1, 1, 2, Q("2 in")))
sketch3.addConstraint(Sketcher.Constraint("DistanceY", 0, 2, 0, 1, Q("82 in")))
sketch3.addConstraint(Sketcher.Constraint("DistanceX", -1, 1, 0, 2, Q("36 in")))
sketch3.addConstraint(Sketcher.Constraint("DistanceX", -1, 1, 4, 2, Q("74 in")))
pad3 = body.newObject("PartDesign::Pad", "Pad002")
pad3.Profile = sketch3
pad3.Length = Q("2 in")
pad3.Reversed = True

sketch4 = body.newObject("Sketcher::SketchObject", "Sketch003")
sketch4.AttachmentSupport = (doc.getObject("YZ_Plane"), [""])
sketch4.MapMode = "FlatFace"
sketch4.AttachmentOffset = App.Placement(V(0, 0, 107 * 25.4), App.Rotation())
sketch4.addGeometry(Part.LineSegment(V(-2788.904361, 736.6, 0), V(-2788.904361, -2133.6, 0)), False)
sketch4.addGeometry(Part.LineSegment(V(-2788.904361, -2133.6, 0), V(1198.895639, -2133.6, 0)), False)
sketch4.addGeometry(Part.LineSegment(V(1198.895639, -2133.6, 0), V(1198.895639, 736.6, 0)), False)
sketch4.addGeometry(Part.LineSegment(V(1198.895639, 736.6, 0), V(-2788.904361, 736.6, 0)), False)
sketch4.addGeometry(Part.LineSegment(V(-845.804361, -2082.8, 0), V(-2738.104361, -2082.8, 0)), False)
sketch4.addGeometry(Part.LineSegment(V(-2738.104361, -2082.8, 0), V(-2738.104361, -1447.8, 0)), False)
sketch4.addGeometry(Part.LineSegment(V(-2738.104361, -1447.8, 0), V(-845.804361, -1447.8, 0)), False)
sketch4.addGeometry(Part.LineSegment(V(-845.804361, -1447.8, 0), V(-845.804361, -2082.8, 0)), False)
sketch4.addGeometry(Part.LineSegment(V(1148.095639, -2082.8, 0), V(-795.004361, -2082.8, 0)), False)
sketch4.addGeometry(Part.LineSegment(V(-795.004361, -2082.8, 0), V(-795.004361, -1447.8, 0)), False)
sketch4.addGeometry(Part.LineSegment(V(-795.004361, -1447.8, 0), V(1148.095639, -1447.8, 0)), False)
sketch4.addGeometry(Part.LineSegment(V(1148.095639, -1447.8, 0), V(1148.095639, -2082.8, 0)), False)
sketch4.addGeometry(Part.LineSegment(V(-845.804361, -1397, 0), V(-2738.104361, -1397, 0)), False)
sketch4.addGeometry(Part.LineSegment(V(-2738.104361, -1397, 0), V(-2738.104361, 0, 0)), False)
sketch4.addGeometry(Part.LineSegment(V(-2738.104361, 0, 0), V(-845.804361, 0, 0)), False)
sketch4.addGeometry(Part.LineSegment(V(-845.804361, 0, 0), V(-845.804361, -1397, 0)), False)
sketch4.addGeometry(Part.LineSegment(V(-845.804361, 50.8, 0), V(-2738.104361, 50.8, 0)), False)
sketch4.addGeometry(Part.LineSegment(V(-2738.104361, 50.8, 0), V(-2738.104361, 685.8, 0)), False)
sketch4.addGeometry(Part.LineSegment(V(-2738.104361, 685.8, 0), V(-845.804361, 685.8, 0)), False)
sketch4.addGeometry(Part.LineSegment(V(-845.804361, 685.8, 0), V(-845.804361, 50.8, 0)), False)
sketch4.addGeometry(Part.LineSegment(V(1148.095639, -1397, 0), V(-795.004361, -1397, 0)), False)
sketch4.addGeometry(Part.LineSegment(V(-795.004361, -1397, 0), V(-795.004361, 0, 0)), False)
sketch4.addGeometry(Part.LineSegment(V(-795.004361, 0, 0), V(1148.095639, 0, 0)), False)
sketch4.addGeometry(Part.LineSegment(V(1148.095639, 0, 0), V(1148.095639, -1397, 0)), False)
sketch4.addGeometry(Part.LineSegment(V(1148.095639, 50.8, 0), V(-795.004361, 50.8, 0)), False)
sketch4.addGeometry(Part.LineSegment(V(-795.004361, 50.8, 0), V(-795.004361, 685.8, 0)), False)
sketch4.addGeometry(Part.LineSegment(V(-795.004361, 685.8, 0), V(1148.095639, 685.8, 0)), False)
sketch4.addGeometry(Part.LineSegment(V(1148.095639, 685.8, 0), V(1148.095639, 50.8, 0)), False)
sketch4.addConstraint(Sketcher.Constraint("Coincident", 0, 2, 1, 1))
sketch4.addConstraint(Sketcher.Constraint("Coincident", 1, 2, 2, 1))
sketch4.addConstraint(Sketcher.Constraint("Coincident", 2, 2, 3, 1))
sketch4.addConstraint(Sketcher.Constraint("Coincident", 3, 2, 0, 1))
sketch4.addConstraint(Sketcher.Constraint("Coincident", 4, 2, 5, 1))
sketch4.addConstraint(Sketcher.Constraint("Coincident", 5, 2, 6, 1))
sketch4.addConstraint(Sketcher.Constraint("Coincident", 6, 2, 7, 1))
sketch4.addConstraint(Sketcher.Constraint("Coincident", 7, 2, 4, 1))
sketch4.addConstraint(Sketcher.Constraint("Coincident", 8, 2, 9, 1))
sketch4.addConstraint(Sketcher.Constraint("Coincident", 9, 2, 10, 1))
sketch4.addConstraint(Sketcher.Constraint("Coincident", 10, 2, 11, 1))
sketch4.addConstraint(Sketcher.Constraint("Coincident", 11, 2, 8, 1))
sketch4.addConstraint(Sketcher.Constraint("Coincident", 12, 2, 13, 1))
sketch4.addConstraint(Sketcher.Constraint("Coincident", 13, 2, 14, 1))
sketch4.addConstraint(Sketcher.Constraint("Coincident", 14, 2, 15, 1))
sketch4.addConstraint(Sketcher.Constraint("Coincident", 15, 2, 12, 1))
sketch4.addConstraint(Sketcher.Constraint("Coincident", 16, 2, 17, 1))
sketch4.addConstraint(Sketcher.Constraint("Coincident", 17, 2, 18, 1))
sketch4.addConstraint(Sketcher.Constraint("Coincident", 18, 2, 19, 1))
sketch4.addConstraint(Sketcher.Constraint("Coincident", 19, 2, 16, 1))
sketch4.addConstraint(Sketcher.Constraint("Coincident", 20, 2, 21, 1))
sketch4.addConstraint(Sketcher.Constraint("Coincident", 21, 2, 22, 1))
sketch4.addConstraint(Sketcher.Constraint("Coincident", 22, 2, 23, 1))
sketch4.addConstraint(Sketcher.Constraint("Coincident", 23, 2, 20, 1))
sketch4.addConstraint(Sketcher.Constraint("Coincident", 24, 2, 25, 1))
sketch4.addConstraint(Sketcher.Constraint("Coincident", 25, 2, 26, 1))
sketch4.addConstraint(Sketcher.Constraint("Coincident", 26, 2, 27, 1))
sketch4.addConstraint(Sketcher.Constraint("Coincident", 27, 2, 24, 1))
sketch4.addConstraint(Sketcher.Constraint("Vertical", 0))
sketch4.addConstraint(Sketcher.Constraint("Horizontal", 1))
sketch4.addConstraint(Sketcher.Constraint("Vertical", 2))
sketch4.addConstraint(Sketcher.Constraint("Horizontal", 3))
sketch4.addConstraint(Sketcher.Constraint("Horizontal", 4))
sketch4.addConstraint(Sketcher.Constraint("Vertical", 5))
sketch4.addConstraint(Sketcher.Constraint("Horizontal", 6))
sketch4.addConstraint(Sketcher.Constraint("Vertical", 7))
sketch4.addConstraint(Sketcher.Constraint("Horizontal", 8))
sketch4.addConstraint(Sketcher.Constraint("Vertical", 9))
sketch4.addConstraint(Sketcher.Constraint("Horizontal", 10))
sketch4.addConstraint(Sketcher.Constraint("Vertical", 11))
sketch4.addConstraint(Sketcher.Constraint("Horizontal", 12))
sketch4.addConstraint(Sketcher.Constraint("Vertical", 13))
sketch4.addConstraint(Sketcher.Constraint("Horizontal", 14))
sketch4.addConstraint(Sketcher.Constraint("Vertical", 15))
sketch4.addConstraint(Sketcher.Constraint("Horizontal", 16))
sketch4.addConstraint(Sketcher.Constraint("Vertical", 17))
sketch4.addConstraint(Sketcher.Constraint("Horizontal", 18))
sketch4.addConstraint(Sketcher.Constraint("Vertical", 19))
sketch4.addConstraint(Sketcher.Constraint("Horizontal", 20))
sketch4.addConstraint(Sketcher.Constraint("Vertical", 21))
sketch4.addConstraint(Sketcher.Constraint("Horizontal", 22))
sketch4.addConstraint(Sketcher.Constraint("Vertical", 23))
sketch4.addConstraint(Sketcher.Constraint("Horizontal", 24))
sketch4.addConstraint(Sketcher.Constraint("Vertical", 25))
sketch4.addConstraint(Sketcher.Constraint("Horizontal", 26))
sketch4.addConstraint(Sketcher.Constraint("Vertical", 27))
sketch4.addConstraint(Sketcher.Constraint("PointOnObject", 13, 2, -1))
sketch4.addConstraint(Sketcher.Constraint("PointOnObject", 21, 2, -1))
sketch4.addConstraint(Sketcher.Constraint("Horizontal", 7, 2, 8, 2))
sketch4.addConstraint(Sketcher.Constraint("Horizontal", 6, 2, 9, 2))
sketch4.addConstraint(Sketcher.Constraint("Horizontal", 15, 2, 20, 2))
sketch4.addConstraint(Sketcher.Constraint("Horizontal", 19, 2, 24, 2))
sketch4.addConstraint(Sketcher.Constraint("Horizontal", 18, 2, 25, 2))
sketch4.addConstraint(Sketcher.Constraint("Vertical", 5, 2, 12, 2))
sketch4.addConstraint(Sketcher.Constraint("Vertical", 7, 2, 14, 2))
sketch4.addConstraint(Sketcher.Constraint("Vertical", 13, 2, 16, 2))
sketch4.addConstraint(Sketcher.Constraint("Vertical", 15, 2, 18, 2))
sketch4.addConstraint(Sketcher.Constraint("Vertical", 9, 2, 20, 2))
sketch4.addConstraint(Sketcher.Constraint("Vertical", 11, 2, 22, 2))
sketch4.addConstraint(Sketcher.Constraint("Vertical", 21, 2, 24, 2))
sketch4.addConstraint(Sketcher.Constraint("Vertical", 23, 2, 26, 2))
sketch4.addConstraint(Sketcher.Constraint("Equal", 11, 17))
sketch4.addConstraint(Sketcher.Constraint("DistanceX", 1, 1, 1, 2, Q("157 in")))
sketch4.addConstraint(Sketcher.Constraint("DistanceY", 0, 2, 0, 1, Q("113 in")))
sketch4.addConstraint(Sketcher.Constraint("DistanceY", 5, 1, 5, 2, Q("25 in")))
sketch4.addConstraint(Sketcher.Constraint("DistanceY", 13, 1, 13, 2, Q("55 in")))
sketch4.addConstraint(Sketcher.Constraint("DistanceX", 4, 2, 4, 1, Q("74.5 in")))
sketch4.addConstraint(Sketcher.Constraint("DistanceX", 8, 2, 8, 1, Q("76.5 in")))
sketch4.addConstraint(Sketcher.Constraint("DistanceY", 0, 2, -1, 1, Q("84 in")))
sketch4.addConstraint(Sketcher.Constraint("DistanceY", 4, 2, -1, 1, Q("82 in")))
sketch4.addConstraint(Sketcher.Constraint("DistanceY", -1, 1, 16, 2, Q("2 in")))
sketch4.addConstraint(Sketcher.Constraint("DistanceX", 0, 2, 4, 2, Q("2 in")))
sketch4.addConstraint(Sketcher.Constraint("DistanceX", 7, 2, 8, 2, Q("2 in")))
sketch4.addConstraint(Sketcher.Constraint("DistanceX", 0, 2, -1, 1, 2788.904361))
pad4 = body.newObject("PartDesign::Pad", "Pad003")
pad4.Profile = sketch4
pad4.Length = Q("2 in")

doc.recompute()
